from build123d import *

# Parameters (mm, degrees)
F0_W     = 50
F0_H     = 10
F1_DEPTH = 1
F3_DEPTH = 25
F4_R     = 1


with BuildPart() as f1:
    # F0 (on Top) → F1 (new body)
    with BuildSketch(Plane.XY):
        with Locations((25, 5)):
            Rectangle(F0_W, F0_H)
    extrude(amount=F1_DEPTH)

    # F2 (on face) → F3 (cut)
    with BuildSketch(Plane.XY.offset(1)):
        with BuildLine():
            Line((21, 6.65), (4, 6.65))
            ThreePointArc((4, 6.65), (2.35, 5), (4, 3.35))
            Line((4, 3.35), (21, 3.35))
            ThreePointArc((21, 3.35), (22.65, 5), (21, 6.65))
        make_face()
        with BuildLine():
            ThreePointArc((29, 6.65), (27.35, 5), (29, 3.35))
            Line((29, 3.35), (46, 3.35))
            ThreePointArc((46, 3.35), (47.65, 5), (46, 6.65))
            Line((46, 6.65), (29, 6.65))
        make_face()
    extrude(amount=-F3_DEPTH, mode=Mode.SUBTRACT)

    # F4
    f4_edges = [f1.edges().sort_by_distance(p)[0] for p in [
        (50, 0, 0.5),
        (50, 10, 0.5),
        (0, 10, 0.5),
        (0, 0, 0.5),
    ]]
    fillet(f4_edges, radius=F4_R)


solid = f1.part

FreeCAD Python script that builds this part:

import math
import FreeCAD as App
import Part
import Sketcher

V = App.Vector
Q = App.Units.Quantity


def edges_at(feature, points):
    """Names of the edges that pass closest to the given points."""
    edges = feature.Shape.Edges
    near = lambda p: min(range(len(edges)), key=lambda i: edges[i].distToShape(Part.Vertex(*p))[0])
    return sorted({f"Edge{near(p) + 1}" for p in points})

doc = App.newDocument("Part")
body = doc.addObject("PartDesign::Body", "Body")

# Sketch on XY plane
sketch1 = body.newObject("Sketcher::SketchObject", "Sketch")
sketch1.AttachmentSupport = (doc.getObject("XY_Plane"), [""])
sketch1.MapMode = "FlatFace"
sketch1.addGeometry([
    Part.LineSegment(V(0, 10, 0), V(0, 0, 0)),
    Part.LineSegment(V(0, 0, 0), V(50, 0, 0)),
    Part.LineSegment(V(50, 0, 0), V(50, 10, 0)),
    Part.LineSegment(V(50, 10, 0), V(0, 10, 0)),
], False)
sketch1.addConstraint([
    Sketcher.Constraint("Coincident", 0, 2, 1, 1),
    Sketcher.Constraint("Coincident", 1, 2, 2, 1),
    Sketcher.Constraint("Coincident", 2, 2, 3, 1),
    Sketcher.Constraint("Coincident", 3, 2, 0, 1),
    Sketcher.Constraint("Vertical", 0),
    Sketcher.Constraint("Horizontal", 1),
    Sketcher.Constraint("Vertical", 2),
    Sketcher.Constraint("Horizontal", 3),
    Sketcher.Constraint("Coincident", 0, 2, -1, 1),
    Sketcher.Constraint("DistanceX", 1, 1, 1, 2, Q("50 mm")),
    Sketcher.Constraint("DistanceY", 0, 2, 0, 1, Q("10 mm")),
])
pad1 = body.newObject("PartDesign::Pad", "Pad")
pad1.Profile = sketch1
pad1.Length = 1

# Sketch on XY plane
sketch2 = body.newObject("Sketcher::SketchObject", "Sketch001")
sketch2.AttachmentSupport = (doc.getObject("XY_Plane"), [""])
sketch2.MapMode = "FlatFace"
sketch2.AttachmentOffset = App.Placement(V(0, 0, 1), App.Rotation())
sketch2.addGeometry([
    Part.LineSegment(V(21, 6.65, 0), V(4, 6.65, 0)),  # 0
    Part.ArcOfCircle(Part.Circle(V(4, 5, 0), V(0, 0, 1), 1.65), math.radians(90), math.radians(270)),  # 1
    Part.LineSegment(V(4, 3.35, 0), V(21, 3.35, 0)),  # 2
    Part.ArcOfCircle(Part.Circle(V(21, 5, 0), V(0, 0, 1), 1.65), math.radians(-90), math.radians(90)),  # 3
    Part.ArcOfCircle(Part.Circle(V(29, 5, 0), V(0, 0, 1), 1.65), math.radians(90), math.radians(270)),  # 4
    Part.LineSegment(V(29, 3.35, 0), V(46, 3.35, 0)),  # 5
    Part.ArcOfCircle(Part.Circle(V(46, 5, 0), V(0, 0, 1), 1.65), math.radians(-90), math.radians(90)),  # 6
    Part.LineSegment(V(46, 6.65, 0), V(29, 6.65, 0)),  # 7
], False)
sketch2.addConstraint([
    Sketcher.Constraint("Tangent", 0, 2, 1, 1),
    Sketcher.Constraint("Tangent", 1, 2, 2, 1),
    Sketcher.Constraint("Tangent", 2, 2, 3, 1),
    Sketcher.Constraint("Tangent", 3, 2, 0, 1),
    Sketcher.Constraint("Tangent", 4, 2, 5, 1),
    Sketcher.Constraint("Tangent", 5, 2, 6, 1),
    Sketcher.Constraint("Tangent", 6, 2, 7, 1),
    Sketcher.Constraint("Tangent", 7, 2, 4, 1),
    Sketcher.Constraint("Horizontal", 0),
    Sketcher.Constraint("Horizontal", 2),
    Sketcher.Constraint("Horizontal", 5),
    Sketcher.Constraint("Horizontal", 7),
    Sketcher.Constraint("Equal", 3, 4),
    Sketcher.Constraint("Horizontal", 3, 3, 4, 3),
    Sketcher.Constraint("Equal", 2, 5),
    Sketcher.Constraint("DistanceX", 0, 2, 0, 1, Q("17 mm")),
    Sketcher.Constraint("Radius", 1, Q("1.65 mm")),
    Sketcher.Constraint("DistanceX", -1, 1, 1, 3, Q("4 mm")),
    Sketcher.Constraint("DistanceY", -1, 1, 1, 3, Q("5 mm")),
    Sketcher.Constraint("DistanceX", -1, 1, 4, 3, Q("29 mm")),
])
pocket1 = body.newObject("PartDesign::Pocket", "Pocket")
pocket1.Profile = sketch2
pocket1.Length = 25
doc.recompute()

fillet = body.newObject("PartDesign::Fillet", "Fillet")
fillet.Base = (pocket1, edges_at(pocket1, [
    (50, 0, 0.5),
    (50, 10, 0.5),
    (0, 10, 0.5),
    (0, 0, 0.5),
]))
fillet.Radius = 1

doc.recompute()
